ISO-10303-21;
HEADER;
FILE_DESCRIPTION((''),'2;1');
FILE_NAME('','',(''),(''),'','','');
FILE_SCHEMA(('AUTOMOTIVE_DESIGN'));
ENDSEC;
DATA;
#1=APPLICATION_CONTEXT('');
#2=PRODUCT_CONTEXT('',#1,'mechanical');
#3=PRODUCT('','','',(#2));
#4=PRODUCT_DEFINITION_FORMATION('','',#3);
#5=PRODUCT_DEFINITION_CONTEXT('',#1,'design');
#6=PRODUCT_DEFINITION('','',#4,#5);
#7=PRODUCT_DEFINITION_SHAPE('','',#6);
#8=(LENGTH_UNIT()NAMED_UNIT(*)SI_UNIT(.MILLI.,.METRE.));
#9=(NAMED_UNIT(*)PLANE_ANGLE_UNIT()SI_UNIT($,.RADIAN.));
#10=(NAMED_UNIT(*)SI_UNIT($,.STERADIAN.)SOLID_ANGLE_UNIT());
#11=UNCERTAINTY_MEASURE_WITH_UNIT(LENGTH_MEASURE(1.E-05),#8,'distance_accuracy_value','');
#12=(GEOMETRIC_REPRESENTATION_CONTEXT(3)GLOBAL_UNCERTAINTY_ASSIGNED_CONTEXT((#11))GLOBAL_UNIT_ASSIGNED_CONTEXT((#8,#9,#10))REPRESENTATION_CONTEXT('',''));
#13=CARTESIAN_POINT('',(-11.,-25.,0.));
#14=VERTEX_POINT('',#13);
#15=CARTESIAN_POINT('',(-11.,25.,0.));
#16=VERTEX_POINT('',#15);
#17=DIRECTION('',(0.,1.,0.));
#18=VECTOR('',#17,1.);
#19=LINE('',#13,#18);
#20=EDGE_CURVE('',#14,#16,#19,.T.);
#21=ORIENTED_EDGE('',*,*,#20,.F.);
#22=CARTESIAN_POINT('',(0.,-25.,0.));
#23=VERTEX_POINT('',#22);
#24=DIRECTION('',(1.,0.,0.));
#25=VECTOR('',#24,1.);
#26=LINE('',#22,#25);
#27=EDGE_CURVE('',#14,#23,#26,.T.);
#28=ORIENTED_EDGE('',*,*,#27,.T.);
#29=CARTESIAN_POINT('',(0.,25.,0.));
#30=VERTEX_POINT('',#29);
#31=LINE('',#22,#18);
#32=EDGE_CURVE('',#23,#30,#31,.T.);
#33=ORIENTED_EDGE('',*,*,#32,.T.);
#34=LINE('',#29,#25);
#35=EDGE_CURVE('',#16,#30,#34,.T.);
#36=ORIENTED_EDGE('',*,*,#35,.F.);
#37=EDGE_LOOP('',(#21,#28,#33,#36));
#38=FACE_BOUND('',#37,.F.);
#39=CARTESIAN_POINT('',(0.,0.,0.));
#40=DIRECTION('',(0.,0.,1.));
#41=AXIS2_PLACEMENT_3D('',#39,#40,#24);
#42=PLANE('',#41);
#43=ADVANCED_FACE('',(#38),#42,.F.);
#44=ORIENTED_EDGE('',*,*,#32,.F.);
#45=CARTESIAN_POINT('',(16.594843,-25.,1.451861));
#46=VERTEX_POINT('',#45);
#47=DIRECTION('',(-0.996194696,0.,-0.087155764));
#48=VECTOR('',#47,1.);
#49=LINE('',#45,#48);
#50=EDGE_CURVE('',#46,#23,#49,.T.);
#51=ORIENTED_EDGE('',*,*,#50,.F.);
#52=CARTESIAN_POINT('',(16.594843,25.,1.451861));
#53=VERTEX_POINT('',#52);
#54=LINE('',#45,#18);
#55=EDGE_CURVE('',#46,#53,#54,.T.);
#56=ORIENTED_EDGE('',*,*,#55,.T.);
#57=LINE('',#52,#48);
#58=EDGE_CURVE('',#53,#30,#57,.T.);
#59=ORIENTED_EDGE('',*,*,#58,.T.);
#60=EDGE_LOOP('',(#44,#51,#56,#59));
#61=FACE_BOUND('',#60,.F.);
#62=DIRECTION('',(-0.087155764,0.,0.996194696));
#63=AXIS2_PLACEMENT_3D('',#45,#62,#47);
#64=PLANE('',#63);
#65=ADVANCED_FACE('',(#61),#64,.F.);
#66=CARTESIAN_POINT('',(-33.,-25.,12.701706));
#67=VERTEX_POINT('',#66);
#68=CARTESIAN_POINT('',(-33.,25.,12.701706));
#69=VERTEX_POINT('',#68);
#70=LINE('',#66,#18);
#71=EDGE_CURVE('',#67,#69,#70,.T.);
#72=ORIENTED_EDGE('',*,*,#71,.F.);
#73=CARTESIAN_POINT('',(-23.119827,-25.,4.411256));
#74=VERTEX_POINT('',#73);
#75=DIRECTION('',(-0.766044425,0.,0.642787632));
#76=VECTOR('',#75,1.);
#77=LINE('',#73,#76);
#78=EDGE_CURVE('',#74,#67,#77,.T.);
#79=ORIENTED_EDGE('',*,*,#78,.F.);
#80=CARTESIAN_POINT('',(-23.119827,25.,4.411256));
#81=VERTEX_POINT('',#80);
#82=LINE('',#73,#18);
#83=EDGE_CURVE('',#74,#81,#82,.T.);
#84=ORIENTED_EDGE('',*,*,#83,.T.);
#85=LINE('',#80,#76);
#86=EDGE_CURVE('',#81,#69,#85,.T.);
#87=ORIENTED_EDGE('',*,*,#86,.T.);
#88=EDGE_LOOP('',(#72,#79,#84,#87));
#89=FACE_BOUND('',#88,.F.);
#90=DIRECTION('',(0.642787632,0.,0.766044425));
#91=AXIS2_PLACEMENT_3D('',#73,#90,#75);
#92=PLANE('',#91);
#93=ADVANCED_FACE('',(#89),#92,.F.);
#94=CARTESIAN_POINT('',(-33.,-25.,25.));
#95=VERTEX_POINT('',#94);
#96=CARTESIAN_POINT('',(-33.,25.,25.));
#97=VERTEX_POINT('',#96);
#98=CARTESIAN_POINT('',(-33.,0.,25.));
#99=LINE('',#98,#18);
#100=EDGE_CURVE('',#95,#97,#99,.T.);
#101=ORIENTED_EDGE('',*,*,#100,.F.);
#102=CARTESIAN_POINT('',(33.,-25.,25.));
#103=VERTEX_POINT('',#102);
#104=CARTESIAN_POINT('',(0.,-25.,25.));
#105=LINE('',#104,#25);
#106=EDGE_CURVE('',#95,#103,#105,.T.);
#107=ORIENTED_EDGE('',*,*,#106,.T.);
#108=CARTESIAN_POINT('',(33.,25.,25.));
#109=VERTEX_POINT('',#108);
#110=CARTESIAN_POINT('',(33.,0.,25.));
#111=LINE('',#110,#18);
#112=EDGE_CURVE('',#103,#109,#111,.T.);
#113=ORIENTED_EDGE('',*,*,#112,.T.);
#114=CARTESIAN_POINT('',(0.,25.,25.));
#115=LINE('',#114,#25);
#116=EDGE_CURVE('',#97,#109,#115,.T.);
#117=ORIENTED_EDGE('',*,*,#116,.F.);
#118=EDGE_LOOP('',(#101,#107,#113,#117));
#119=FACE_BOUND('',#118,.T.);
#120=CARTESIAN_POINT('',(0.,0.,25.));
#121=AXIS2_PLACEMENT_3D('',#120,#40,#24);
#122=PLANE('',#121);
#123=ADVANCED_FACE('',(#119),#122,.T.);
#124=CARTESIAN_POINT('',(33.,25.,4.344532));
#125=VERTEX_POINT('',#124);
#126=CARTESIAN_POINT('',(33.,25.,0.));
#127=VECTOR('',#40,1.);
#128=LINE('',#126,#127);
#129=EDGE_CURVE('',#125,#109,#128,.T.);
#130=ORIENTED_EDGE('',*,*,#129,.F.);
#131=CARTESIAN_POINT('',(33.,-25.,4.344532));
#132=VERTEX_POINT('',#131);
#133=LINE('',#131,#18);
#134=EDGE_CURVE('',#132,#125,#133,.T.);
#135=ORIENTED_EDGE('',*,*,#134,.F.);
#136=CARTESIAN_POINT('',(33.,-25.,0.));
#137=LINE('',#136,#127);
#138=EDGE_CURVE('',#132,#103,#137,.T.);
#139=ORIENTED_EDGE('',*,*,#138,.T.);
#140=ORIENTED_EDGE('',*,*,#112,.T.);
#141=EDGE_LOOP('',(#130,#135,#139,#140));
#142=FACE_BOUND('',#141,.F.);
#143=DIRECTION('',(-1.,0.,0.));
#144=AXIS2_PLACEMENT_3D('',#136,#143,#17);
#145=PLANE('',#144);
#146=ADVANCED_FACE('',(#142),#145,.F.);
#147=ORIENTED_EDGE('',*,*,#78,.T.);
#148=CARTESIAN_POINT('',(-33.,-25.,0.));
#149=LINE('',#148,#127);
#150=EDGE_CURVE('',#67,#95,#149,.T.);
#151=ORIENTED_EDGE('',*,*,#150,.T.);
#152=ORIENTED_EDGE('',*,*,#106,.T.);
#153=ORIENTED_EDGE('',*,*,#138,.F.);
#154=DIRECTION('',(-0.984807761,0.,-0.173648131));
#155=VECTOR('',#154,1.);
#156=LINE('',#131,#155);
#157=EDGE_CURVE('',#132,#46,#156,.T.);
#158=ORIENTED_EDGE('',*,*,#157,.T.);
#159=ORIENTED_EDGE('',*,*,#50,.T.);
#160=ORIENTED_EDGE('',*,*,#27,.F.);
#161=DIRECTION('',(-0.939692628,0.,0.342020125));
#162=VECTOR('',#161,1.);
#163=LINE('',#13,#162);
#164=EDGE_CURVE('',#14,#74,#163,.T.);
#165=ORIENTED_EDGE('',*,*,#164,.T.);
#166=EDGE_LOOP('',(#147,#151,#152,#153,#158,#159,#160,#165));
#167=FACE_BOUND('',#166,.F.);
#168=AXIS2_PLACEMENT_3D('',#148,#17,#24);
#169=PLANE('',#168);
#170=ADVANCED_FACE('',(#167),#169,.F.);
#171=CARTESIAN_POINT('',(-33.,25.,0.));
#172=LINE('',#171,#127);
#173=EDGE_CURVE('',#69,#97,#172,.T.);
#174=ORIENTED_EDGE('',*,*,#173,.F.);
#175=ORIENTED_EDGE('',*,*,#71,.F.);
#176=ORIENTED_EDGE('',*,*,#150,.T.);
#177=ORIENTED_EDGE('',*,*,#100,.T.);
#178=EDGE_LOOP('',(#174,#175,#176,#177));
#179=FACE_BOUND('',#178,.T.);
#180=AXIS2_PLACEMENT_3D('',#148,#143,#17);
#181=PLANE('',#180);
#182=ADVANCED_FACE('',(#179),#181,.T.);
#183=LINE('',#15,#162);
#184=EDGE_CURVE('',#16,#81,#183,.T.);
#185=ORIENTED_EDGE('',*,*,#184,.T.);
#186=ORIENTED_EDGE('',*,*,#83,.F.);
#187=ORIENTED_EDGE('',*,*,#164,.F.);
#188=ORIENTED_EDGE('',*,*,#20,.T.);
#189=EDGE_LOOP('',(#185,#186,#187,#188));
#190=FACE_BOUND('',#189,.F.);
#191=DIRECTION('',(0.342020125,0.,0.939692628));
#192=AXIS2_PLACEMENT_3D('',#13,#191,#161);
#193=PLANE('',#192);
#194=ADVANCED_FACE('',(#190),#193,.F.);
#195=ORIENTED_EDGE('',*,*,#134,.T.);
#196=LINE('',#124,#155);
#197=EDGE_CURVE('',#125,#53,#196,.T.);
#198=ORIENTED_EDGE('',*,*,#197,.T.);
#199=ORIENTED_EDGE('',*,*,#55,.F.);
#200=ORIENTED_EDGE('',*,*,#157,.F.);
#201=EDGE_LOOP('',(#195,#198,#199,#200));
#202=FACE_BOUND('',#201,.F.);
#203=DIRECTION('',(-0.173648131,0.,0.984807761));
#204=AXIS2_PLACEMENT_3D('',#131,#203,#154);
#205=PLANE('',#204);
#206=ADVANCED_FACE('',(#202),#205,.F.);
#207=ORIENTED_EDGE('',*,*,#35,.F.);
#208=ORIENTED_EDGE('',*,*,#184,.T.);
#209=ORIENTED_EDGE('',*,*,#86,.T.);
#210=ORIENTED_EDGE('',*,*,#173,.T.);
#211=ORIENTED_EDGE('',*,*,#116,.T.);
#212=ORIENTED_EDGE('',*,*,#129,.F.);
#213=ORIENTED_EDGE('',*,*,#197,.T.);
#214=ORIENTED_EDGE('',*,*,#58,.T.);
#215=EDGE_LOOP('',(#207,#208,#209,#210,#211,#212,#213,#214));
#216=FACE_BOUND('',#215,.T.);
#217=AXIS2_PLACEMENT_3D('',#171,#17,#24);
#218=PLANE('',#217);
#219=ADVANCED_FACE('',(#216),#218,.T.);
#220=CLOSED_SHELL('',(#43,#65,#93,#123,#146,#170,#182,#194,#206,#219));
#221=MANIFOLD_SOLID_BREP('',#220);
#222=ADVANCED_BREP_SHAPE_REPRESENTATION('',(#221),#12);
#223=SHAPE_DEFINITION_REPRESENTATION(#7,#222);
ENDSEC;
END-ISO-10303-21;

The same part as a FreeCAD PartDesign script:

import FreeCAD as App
import Part
import Sketcher
from FreeCAD import Vector
Q = App.Units.Quantity

doc = App.newDocument("Part")
body = doc.addObject("PartDesign::Body", "Body")

sketch1 = body.newObject("Sketcher::SketchObject", "Sketch")
sketch1.AttachmentSupport = (doc.getObject("XY_Plane"), [""])
sketch1.MapMode = "FlatFace"
sketch1.addGeometry([
    Part.LineSegment(Vector(-33, 25, 0), Vector(-33, -25, 0)),
    Part.LineSegment(Vector(-33, -25, 0), Vector(33, -25, 0)),
    Part.LineSegment(Vector(33, -25, 0), Vector(33, 25, 0)),
    Part.LineSegment(Vector(33, 25, 0), Vector(-33, 25, 0)),
], False)
sketch1.addConstraint([
    Sketcher.Constraint("Coincident", 0, 2, 1, 1),
    Sketcher.Constraint("Coincident", 1, 2, 2, 1),
    Sketcher.Constraint("Coincident", 2, 2, 3, 1),
    Sketcher.Constraint("Coincident", 3, 2, 0, 1),
    Sketcher.Constraint("Vertical", 0),
    Sketcher.Constraint("Horizontal", 1),
    Sketcher.Constraint("Vertical", 2),
    Sketcher.Constraint("Horizontal", 3),
    Sketcher.Constraint("Symmetric", 0, 2, 2, 2, -1, 1),
    Sketcher.Constraint("DistanceX", 1, 1, 1, 2, 66.0),
    Sketcher.Constraint("DistanceY", 0, 2, 0, 1, 50.0),
])
pad1 = body.newObject("PartDesign::Pad", "Pad")
pad1.Profile = sketch1
pad1.Length = 25

sketch2 = body.newObject("Sketcher::SketchObject", "Sketch001")
sketch2.AttachmentSupport = (doc.getObject("XZ_Plane"), [""])
sketch2.MapMode = "FlatFace"
sketch2.AttachmentOffset = App.Placement(Vector(0, 0, 25), App.Rotation())
sketch2.addGeometry([
    Part.LineSegment(Vector(-33, 0, 0), Vector(-11, 0, 0)),
    Part.LineSegment(Vector(-11, 0, 0), Vector(-23.1, 4.4, 0)),
    Part.LineSegment(Vector(-23.1, 4.4, 0), Vector(-33, 12.7, 0)),
    Part.LineSegment(Vector(-33, 12.7, 0), Vector(-33, 0, 0)),
    Part.LineSegment(Vector(16.6, 1.5, 0), Vector(0, 0, 0)),
    Part.LineSegment(Vector(0, 0, 0), Vector(33, 0, 0)),
    Part.LineSegment(Vector(33, 0, 0), Vector(33, 4.3, 0)),
    Part.LineSegment(Vector(33, 4.3, 0), Vector(16.6, 1.5, 0)),
], False)
sketch2.addConstraint([
    Sketcher.Constraint("Coincident", 0, 2, 1, 1),
    Sketcher.Constraint("Coincident", 1, 2, 2, 1),
    Sketcher.Constraint("Coincident", 2, 2, 3, 1),
    Sketcher.Constraint("Coincident", 3, 2, 0, 1),
    Sketcher.Constraint("Coincident", 4, 2, 5, 1),
    Sketcher.Constraint("Coincident", 5, 2, 6, 1),
    Sketcher.Constraint("Coincident", 6, 2, 7, 1),
    Sketcher.Constraint("Coincident", 7, 2, 4, 1),
    Sketcher.Constraint("Horizontal", 0),
    Sketcher.Constraint("Vertical", 3),
    Sketcher.Constraint("Horizontal", 5),
    Sketcher.Constraint("Vertical", 6),
    Sketcher.Constraint("Coincident", 4, 2, -1, 1),
    Sketcher.Constraint("Symmetric", 3, 2, 5, 2, -1, 1),
    Sketcher.Constraint("Equal", 1, 2),
    Sketcher.Constraint("Equal", 4, 7),
    Sketcher.Constraint("DistanceX", 0, 1, 0, 2, 22.0),
    Sketcher.Constraint("DistanceX", 5, 1, 5, 2, 33.0),
    Sketcher.Constraint("Angle", 1, Q("160.000001 deg")),
    Sketcher.Constraint("Angle", 2, Q("139.999998 deg")),
    Sketcher.Constraint("Angle", 4, Q("-174.999999 deg")),
    Sketcher.Constraint("Angle", 7, Q("-170.000003 deg")),
])
pocket1 = body.newObject("PartDesign::Pocket", "Pocket")
pocket1.Profile = sketch2
pocket1.Length = 50

doc.recompute()
